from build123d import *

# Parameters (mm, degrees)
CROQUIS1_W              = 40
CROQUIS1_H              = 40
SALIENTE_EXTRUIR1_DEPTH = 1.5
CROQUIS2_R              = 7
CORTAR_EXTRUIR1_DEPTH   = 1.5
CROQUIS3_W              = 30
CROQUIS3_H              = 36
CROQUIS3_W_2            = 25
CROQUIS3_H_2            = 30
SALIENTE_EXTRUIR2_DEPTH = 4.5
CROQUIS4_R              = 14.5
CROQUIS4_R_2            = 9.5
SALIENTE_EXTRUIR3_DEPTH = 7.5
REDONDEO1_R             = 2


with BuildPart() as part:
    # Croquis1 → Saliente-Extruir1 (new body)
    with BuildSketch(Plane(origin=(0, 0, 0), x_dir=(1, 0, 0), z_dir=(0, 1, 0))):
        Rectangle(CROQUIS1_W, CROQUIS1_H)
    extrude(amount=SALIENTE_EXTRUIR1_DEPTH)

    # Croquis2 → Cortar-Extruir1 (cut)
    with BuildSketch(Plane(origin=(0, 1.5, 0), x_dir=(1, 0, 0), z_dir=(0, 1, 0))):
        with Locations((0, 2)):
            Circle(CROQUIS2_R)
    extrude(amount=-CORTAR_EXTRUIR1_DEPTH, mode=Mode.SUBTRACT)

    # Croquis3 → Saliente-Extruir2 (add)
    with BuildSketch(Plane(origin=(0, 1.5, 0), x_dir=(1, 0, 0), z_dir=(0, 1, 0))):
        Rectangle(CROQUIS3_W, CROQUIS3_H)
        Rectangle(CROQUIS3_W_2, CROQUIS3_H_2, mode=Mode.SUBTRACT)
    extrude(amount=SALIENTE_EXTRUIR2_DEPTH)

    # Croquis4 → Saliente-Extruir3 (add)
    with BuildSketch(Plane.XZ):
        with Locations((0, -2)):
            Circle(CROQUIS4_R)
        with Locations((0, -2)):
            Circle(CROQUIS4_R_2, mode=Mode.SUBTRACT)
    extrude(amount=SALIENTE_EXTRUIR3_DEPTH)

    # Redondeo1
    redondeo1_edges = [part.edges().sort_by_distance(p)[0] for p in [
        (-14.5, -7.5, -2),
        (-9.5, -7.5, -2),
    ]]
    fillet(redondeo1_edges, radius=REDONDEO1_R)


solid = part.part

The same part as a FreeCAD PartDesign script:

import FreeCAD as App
import Part
import Sketcher
from FreeCAD import Vector
Q = App.Units.Quantity


def edges_at(feature, points):
    """Names of the edges that pass closest to the given points."""
    edges = feature.Shape.Edges
    near = lambda p: min(range(len(edges)), key=lambda i: edges[i].distToShape(Part.Vertex(*p))[0])
    return sorted({f"Edge{near(p) + 1}" for p in points})

doc = App.newDocument("Part")
body = doc.addObject("PartDesign::Body", "Body")

# Sketch on XZ plane
sketch1 = body.newObject("Sketcher::SketchObject", "Sketch")
sketch1.AttachmentSupport = (doc.getObject("XZ_Plane"), [""])
sketch1.MapMode = "FlatFace"
sketch1.addGeometry(Part.LineSegment(Vector(-20, -20, 0), Vector(-20, 20, 0)), False)
sketch1.addGeometry(Part.LineSegment(Vector(-20, 20, 0), Vector(20, 20, 0)), False)
sketch1.addGeometry(Part.LineSegment(Vector(20, 20, 0), Vector(20, -20, 0)), False)
sketch1.addGeometry(Part.LineSegment(Vector(20, -20, 0), Vector(-20, -20, 0)), False)
sketch1.addConstraint(Sketcher.Constraint("Coincident", 0, 2, 1, 1))
sketch1.addConstraint(Sketcher.Constraint("Coincident", 1, 2, 2, 1))
sketch1.addConstraint(Sketcher.Constraint("Coincident", 2, 2, 3, 1))
sketch1.addConstraint(Sketcher.Constraint("Coincident", 3, 2, 0, 1))
sketch1.addConstraint(Sketcher.Constraint("Vertical", 0))
sketch1.addConstraint(Sketcher.Constraint("Horizontal", 1))
sketch1.addConstraint(Sketcher.Constraint("Vertical", 2))
sketch1.addConstraint(Sketcher.Constraint("Horizontal", 3))
sketch1.addConstraint(Sketcher.Constraint("Symmetric", 0, 2, 2, 2, -1, 1))
sketch1.addConstraint(Sketcher.Constraint("Equal", 3, 0))
sketch1.addConstraint(Sketcher.Constraint("DistanceX", 1, 1, 1, 2, Q("40 mm")))
pad1 = body.newObject("PartDesign::Pad", "Pad")
pad1.Profile = sketch1
pad1.Length = 1.5
pad1.Reversed = True

# Sketch on XZ plane
sketch2 = body.newObject("Sketcher::SketchObject", "Sketch001")
sketch2.AttachmentSupport = (doc.getObject("XZ_Plane"), [""])
sketch2.MapMode = "FlatFace"
sketch2.AttachmentOffset = App.Placement(Vector(0, 0, -1.5), App.Rotation())
sketch2.addGeometry(Part.Circle(Vector(0, -2, 0), Vector(0, 0, 1), 7), False)
sketch2.addConstraint(Sketcher.Constraint("PointOnObject", 0, 3, -2))
sketch2.addConstraint(Sketcher.Constraint("Diameter", 0, Q("14 mm")))
sketch2.addConstraint(Sketcher.Constraint("DistanceY", 0, 3, -1, 1, Q("2 mm")))
pocket1 = body.newObject("PartDesign::Pocket", "Pocket")
pocket1.Profile = sketch2
pocket1.Length = 1.5
pocket1.Reversed = True

# Sketch on XZ plane
sketch3 = body.newObject("Sketcher::SketchObject", "Sketch002")
sketch3.AttachmentSupport = (doc.getObject("XZ_Plane"), [""])
sketch3.MapMode = "FlatFace"
sketch3.AttachmentOffset = App.Placement(Vector(0, 0, -1.5), App.Rotation())
sketch3.addGeometry(Part.LineSegment(Vector(-15, -18, 0), Vector(-15, 18, 0)), False)
sketch3.addGeometry(Part.LineSegment(Vector(-15, 18, 0), Vector(15, 18, 0)), False)
sketch3.addGeometry(Part.LineSegment(Vector(15, 18, 0), Vector(15, -18, 0)), False)
sketch3.addGeometry(Part.LineSegment(Vector(15, -18, 0), Vector(-15, -18, 0)), False)
sketch3.addGeometry(Part.LineSegment(Vector(12, 15, 0), Vector(-12, 15, 0)), False)
sketch3.addGeometry(Part.LineSegment(Vector(-12, 15, 0), Vector(-12, -15, 0)), False)
sketch3.addGeometry(Part.LineSegment(Vector(-12, -15, 0), Vector(12, -15, 0)), False)
sketch3.addGeometry(Part.LineSegment(Vector(12, -15, 0), Vector(12, 15, 0)), False)
sketch3.addConstraint(Sketcher.Constraint("Coincident", 0, 2, 1, 1))
sketch3.addConstraint(Sketcher.Constraint("Coincident", 1, 2, 2, 1))
sketch3.addConstraint(Sketcher.Constraint("Coincident", 2, 2, 3, 1))
sketch3.addConstraint(Sketcher.Constraint("Coincident", 3, 2, 0, 1))
sketch3.addConstraint(Sketcher.Constraint("Coincident", 4, 2, 5, 1))
sketch3.addConstraint(Sketcher.Constraint("Coincident", 5, 2, 6, 1))
sketch3.addConstraint(Sketcher.Constraint("Coincident", 6, 2, 7, 1))
sketch3.addConstraint(Sketcher.Constraint("Coincident", 7, 2, 4, 1))
sketch3.addConstraint(Sketcher.Constraint("Vertical", 0))
sketch3.addConstraint(Sketcher.Constraint("Horizontal", 1))
sketch3.addConstraint(Sketcher.Constraint("Vertical", 2))
sketch3.addConstraint(Sketcher.Constraint("Horizontal", 3))
sketch3.addConstraint(Sketcher.Constraint("Horizontal", 4))
sketch3.addConstraint(Sketcher.Constraint("Vertical", 5))
sketch3.addConstraint(Sketcher.Constraint("Horizontal", 6))
sketch3.addConstraint(Sketcher.Constraint("Vertical", 7))
sketch3.addConstraint(Sketcher.Constraint("Symmetric", 0, 2, 2, 2, -1, 1))
sketch3.addConstraint(Sketcher.Constraint("Symmetric", 4, 2, 6, 2, -1, 1))
sketch3.addConstraint(Sketcher.Constraint("Equal", 3, 5))
sketch3.addConstraint(Sketcher.Constraint("DistanceX", 1, 1, 1, 2, Q("30 mm")))
sketch3.addConstraint(Sketcher.Constraint("DistanceX", 4, 2, 4, 1, Q("25 mm")))
sketch3.addConstraint(Sketcher.Constraint("DistanceY", 0, 1, 0, 2, Q("36 mm")))
pad2 = body.newObject("PartDesign::Pad", "Pad001")
pad2.Profile = sketch3
pad2.Length = 4.5
pad2.Reversed = True

# Sketch on XZ plane
sketch4 = body.newObject("Sketcher::SketchObject", "Sketch003")
sketch4.AttachmentSupport = (doc.getObject("XZ_Plane"), [""])
sketch4.MapMode = "FlatFace"
sketch4.addGeometry(Part.Circle(Vector(0, -2, 0), Vector(0, 0, 1), 14), False)
sketch4.addGeometry(Part.Circle(Vector(0, -2, 0), Vector(0, 0, 1), 10), False)
sketch4.addConstraint(Sketcher.Constraint("Coincident", 1, 3, 0, 3))
sketch4.addConstraint(Sketcher.Constraint("PointOnObject", 0, 3, -2))
sketch4.addConstraint(Sketcher.Constraint("Diameter", 0, Q("29 mm")))
sketch4.addConstraint(Sketcher.Constraint("Diameter", 1, Q("19 mm")))
sketch4.addConstraint(Sketcher.Constraint("DistanceY", 0, 3, -1, 1, Q("2 mm")))
pad3 = body.newObject("PartDesign::Pad", "Pad002")
pad3.Profile = sketch4
pad3.Length = 7.5
doc.recompute()

fillet = body.newObject("PartDesign::Fillet", "Fillet")
fillet.Base = (pad3, edges_at(pad3, [(-14.5, -7.5, -2), (-9.5, -7.5, -2)]))
fillet.Radius = 2

doc.recompute()
